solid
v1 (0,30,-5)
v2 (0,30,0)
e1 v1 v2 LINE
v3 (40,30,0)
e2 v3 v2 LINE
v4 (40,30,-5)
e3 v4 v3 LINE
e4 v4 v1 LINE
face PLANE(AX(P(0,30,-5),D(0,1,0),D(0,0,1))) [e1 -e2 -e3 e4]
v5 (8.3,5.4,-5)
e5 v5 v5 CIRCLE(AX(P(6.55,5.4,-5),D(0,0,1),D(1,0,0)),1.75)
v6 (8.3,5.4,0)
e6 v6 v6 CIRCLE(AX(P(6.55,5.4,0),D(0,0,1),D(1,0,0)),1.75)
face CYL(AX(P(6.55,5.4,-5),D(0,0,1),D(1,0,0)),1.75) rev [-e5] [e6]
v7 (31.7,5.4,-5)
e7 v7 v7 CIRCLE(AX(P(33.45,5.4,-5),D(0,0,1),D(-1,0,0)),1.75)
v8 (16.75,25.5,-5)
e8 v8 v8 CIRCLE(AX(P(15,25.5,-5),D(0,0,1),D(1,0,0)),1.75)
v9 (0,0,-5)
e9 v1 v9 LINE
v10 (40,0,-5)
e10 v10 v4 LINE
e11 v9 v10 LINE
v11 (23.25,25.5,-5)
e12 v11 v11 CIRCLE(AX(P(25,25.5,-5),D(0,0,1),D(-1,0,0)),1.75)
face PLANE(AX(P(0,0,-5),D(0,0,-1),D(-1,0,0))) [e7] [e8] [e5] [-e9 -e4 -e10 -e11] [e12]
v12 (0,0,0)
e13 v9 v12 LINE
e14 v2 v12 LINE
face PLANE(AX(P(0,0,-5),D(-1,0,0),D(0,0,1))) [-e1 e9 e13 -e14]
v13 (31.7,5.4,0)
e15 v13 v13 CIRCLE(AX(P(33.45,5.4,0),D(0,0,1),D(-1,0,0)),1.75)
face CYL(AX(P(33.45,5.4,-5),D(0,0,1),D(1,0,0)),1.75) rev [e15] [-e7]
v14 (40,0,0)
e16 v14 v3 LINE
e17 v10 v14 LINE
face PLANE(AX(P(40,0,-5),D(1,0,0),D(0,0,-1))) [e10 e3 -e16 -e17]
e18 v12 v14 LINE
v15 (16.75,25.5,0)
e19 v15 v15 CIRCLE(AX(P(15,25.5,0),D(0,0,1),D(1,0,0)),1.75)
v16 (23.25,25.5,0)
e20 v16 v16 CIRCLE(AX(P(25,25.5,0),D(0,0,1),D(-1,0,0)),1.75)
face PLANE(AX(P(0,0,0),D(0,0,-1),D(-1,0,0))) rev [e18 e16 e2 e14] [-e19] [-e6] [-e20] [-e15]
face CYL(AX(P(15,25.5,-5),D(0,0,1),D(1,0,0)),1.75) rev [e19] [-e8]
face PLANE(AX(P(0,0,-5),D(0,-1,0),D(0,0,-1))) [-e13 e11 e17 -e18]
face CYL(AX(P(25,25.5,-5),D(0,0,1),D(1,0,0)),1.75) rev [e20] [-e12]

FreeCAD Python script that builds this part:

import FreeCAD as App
import Part
import Sketcher
Q = App.Units.Quantity

doc = App.newDocument("Part")
body = doc.addObject("PartDesign::Body", "Body")

# Sketch on XY plane
sketch1 = body.newObject("Sketcher::SketchObject", "Sketch")
sketch1.AttachmentSupport = (doc.getObject("XY_Plane"), [""])
sketch1.MapMode = "FlatFace"
sketch1.addGeometry([
    Part.LineSegment(App.Vector(0, 30, 0), App.Vector(0, 0, 0)),  # 0
    Part.LineSegment(App.Vector(0, 0, 0), App.Vector(40, 0, 0)),  # 1
    Part.LineSegment(App.Vector(40, 0, 0), App.Vector(40, 30, 0)),  # 2
    Part.LineSegment(App.Vector(40, 30, 0), App.Vector(0, 30, 0)),  # 3
    Part.Circle(App.Vector(6.55, 5.4, 0), App.Vector(0, 0, 1), 1.75),  # 4
    Part.Circle(App.Vector(33.45, 5.4, 0), App.Vector(0, 0, 1), 1.75),  # 5
    Part.Circle(App.Vector(15, 25.5, 0), App.Vector(0, 0, 1), 1.75),  # 6
    Part.Circle(App.Vector(25, 25.5, 0), App.Vector(0, 0, 1), 1.75),  # 7
], False)
sketch1.addConstraint([
    Sketcher.Constraint("Coincident", 0, 2, 1, 1),
    Sketcher.Constraint("Coincident", 1, 2, 2, 1),
    Sketcher.Constraint("Coincident", 2, 2, 3, 1),
    Sketcher.Constraint("Coincident", 3, 2, 0, 1),
    Sketcher.Constraint("Vertical", 0),
    Sketcher.Constraint("Horizontal", 1),
    Sketcher.Constraint("Vertical", 2),
    Sketcher.Constraint("Horizontal", 3),
    Sketcher.Constraint("Coincident", 0, 2, -1, 1),
    Sketcher.Constraint("Equal", 4, 5),
    Sketcher.Constraint("Equal", 5, 6),
    Sketcher.Constraint("Equal", 6, 7),
    Sketcher.Constraint("Horizontal", 4, 3, 5, 3),
    Sketcher.Constraint("Horizontal", 6, 3, 7, 3),
    Sketcher.Constraint("Diameter", 4, Q("3.5 mm")),
    Sketcher.Constraint("DistanceX", 1, 1, 1, 2, Q("40 mm")),
    Sketcher.Constraint("DistanceY", 0, 2, 0, 1, Q("30 mm")),
    Sketcher.Constraint("DistanceX", -1, 1, 6, 3, Q("15 mm")),
    Sketcher.Constraint("DistanceX", -1, 1, 7, 3, Q("25 mm")),
    Sketcher.Constraint("DistanceY", -1, 1, 4, 3, Q("5.4 mm")),
    Sketcher.Constraint("DistanceY", -1, 1, 6, 3, Q("25.5 mm")),
    Sketcher.Constraint("DistanceX", 4, 3, 5, 3, Q("26.9 mm")),
    Sketcher.Constraint("DistanceX", -1, 1, 4, 3, Q("6.55 mm")),
])
pad1 = body.newObject("PartDesign::Pad", "Pad")
pad1.Profile = sketch1
pad1.Length = 5
pad1.Reversed = True

doc.recompute()
